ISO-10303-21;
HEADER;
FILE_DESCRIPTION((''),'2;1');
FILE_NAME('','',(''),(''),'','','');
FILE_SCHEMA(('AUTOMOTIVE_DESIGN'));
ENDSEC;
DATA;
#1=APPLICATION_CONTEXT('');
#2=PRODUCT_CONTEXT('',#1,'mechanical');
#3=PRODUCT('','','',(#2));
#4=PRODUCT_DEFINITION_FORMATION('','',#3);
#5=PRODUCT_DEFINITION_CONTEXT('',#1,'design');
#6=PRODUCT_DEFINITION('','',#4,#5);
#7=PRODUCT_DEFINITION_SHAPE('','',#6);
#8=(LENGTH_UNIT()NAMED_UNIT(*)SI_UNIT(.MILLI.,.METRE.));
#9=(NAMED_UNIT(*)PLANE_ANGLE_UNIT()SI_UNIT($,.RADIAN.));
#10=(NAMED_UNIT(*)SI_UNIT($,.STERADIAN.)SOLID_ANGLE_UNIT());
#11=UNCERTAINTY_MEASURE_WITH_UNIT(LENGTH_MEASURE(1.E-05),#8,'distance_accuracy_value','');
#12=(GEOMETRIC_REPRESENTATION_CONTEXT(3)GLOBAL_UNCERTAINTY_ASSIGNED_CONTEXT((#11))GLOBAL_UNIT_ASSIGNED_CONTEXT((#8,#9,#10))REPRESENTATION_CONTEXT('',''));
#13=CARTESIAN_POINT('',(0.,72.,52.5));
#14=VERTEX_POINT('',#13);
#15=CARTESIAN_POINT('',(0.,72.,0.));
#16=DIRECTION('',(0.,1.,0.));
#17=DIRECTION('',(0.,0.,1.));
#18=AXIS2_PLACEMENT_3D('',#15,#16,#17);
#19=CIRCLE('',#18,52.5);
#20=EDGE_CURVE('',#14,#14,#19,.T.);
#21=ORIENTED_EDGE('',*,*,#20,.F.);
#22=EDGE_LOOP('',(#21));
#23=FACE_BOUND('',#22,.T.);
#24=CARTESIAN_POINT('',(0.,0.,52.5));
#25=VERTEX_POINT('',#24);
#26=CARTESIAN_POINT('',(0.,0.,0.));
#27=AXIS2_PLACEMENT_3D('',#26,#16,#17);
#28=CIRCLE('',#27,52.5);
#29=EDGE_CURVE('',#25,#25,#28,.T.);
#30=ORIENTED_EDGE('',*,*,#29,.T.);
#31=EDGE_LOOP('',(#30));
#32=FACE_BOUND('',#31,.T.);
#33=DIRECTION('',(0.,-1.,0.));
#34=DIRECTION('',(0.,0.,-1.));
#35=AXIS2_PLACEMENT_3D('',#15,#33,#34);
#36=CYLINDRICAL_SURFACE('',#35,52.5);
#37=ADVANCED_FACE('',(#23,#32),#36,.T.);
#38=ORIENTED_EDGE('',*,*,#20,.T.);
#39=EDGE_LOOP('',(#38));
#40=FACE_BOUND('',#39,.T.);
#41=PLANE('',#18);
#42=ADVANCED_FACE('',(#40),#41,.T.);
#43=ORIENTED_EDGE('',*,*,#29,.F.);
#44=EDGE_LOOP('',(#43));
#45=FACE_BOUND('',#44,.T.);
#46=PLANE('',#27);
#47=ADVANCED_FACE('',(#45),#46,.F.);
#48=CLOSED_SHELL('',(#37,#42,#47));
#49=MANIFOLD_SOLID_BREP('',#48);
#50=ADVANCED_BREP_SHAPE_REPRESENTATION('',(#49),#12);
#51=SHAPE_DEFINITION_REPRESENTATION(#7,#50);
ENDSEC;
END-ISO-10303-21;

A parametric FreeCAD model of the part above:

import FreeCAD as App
import Part
import Sketcher
from FreeCAD import Vector
Q = App.Units.Quantity

doc = App.newDocument("Part")
params = doc.addObject("Spreadsheet::Sheet", "Params")
for row, (alias, value) in enumerate([
    ("sketch1_diameter", "105 mm"),
    ("pad1_length", "72 mm"),
], start=1):
    params.set(f"A{row}", alias)
    params.set(f"B{row}", "=" + value)
    params.setAlias(f"B{row}", alias)

body = doc.addObject("PartDesign::Body", "Body")

# Sketch on XZ plane
sketch1 = body.newObject("Sketcher::SketchObject", "Sketch")
sketch1.AttachmentSupport = (doc.getObject("XZ_Plane"), [""])
sketch1.MapMode = "FlatFace"
sketch1.addGeometry(Part.Circle(Vector(0, 0, 0), Vector(0, 0, 1), 52.5), False)
sketch1.addConstraint(Sketcher.Constraint("Coincident", 0, 3, -1, 1))
sketch1.addConstraint(Sketcher.Constraint("Diameter", 0, Q("105 mm")))
sketch1.setExpression("Constraints[1]", "Params.sketch1_diameter")
pad1 = body.newObject("PartDesign::Pad", "Pad")
pad1.Profile = sketch1
pad1.setExpression("Length", "Params.pad1_length")
pad1.Reversed = True

doc.recompute()
